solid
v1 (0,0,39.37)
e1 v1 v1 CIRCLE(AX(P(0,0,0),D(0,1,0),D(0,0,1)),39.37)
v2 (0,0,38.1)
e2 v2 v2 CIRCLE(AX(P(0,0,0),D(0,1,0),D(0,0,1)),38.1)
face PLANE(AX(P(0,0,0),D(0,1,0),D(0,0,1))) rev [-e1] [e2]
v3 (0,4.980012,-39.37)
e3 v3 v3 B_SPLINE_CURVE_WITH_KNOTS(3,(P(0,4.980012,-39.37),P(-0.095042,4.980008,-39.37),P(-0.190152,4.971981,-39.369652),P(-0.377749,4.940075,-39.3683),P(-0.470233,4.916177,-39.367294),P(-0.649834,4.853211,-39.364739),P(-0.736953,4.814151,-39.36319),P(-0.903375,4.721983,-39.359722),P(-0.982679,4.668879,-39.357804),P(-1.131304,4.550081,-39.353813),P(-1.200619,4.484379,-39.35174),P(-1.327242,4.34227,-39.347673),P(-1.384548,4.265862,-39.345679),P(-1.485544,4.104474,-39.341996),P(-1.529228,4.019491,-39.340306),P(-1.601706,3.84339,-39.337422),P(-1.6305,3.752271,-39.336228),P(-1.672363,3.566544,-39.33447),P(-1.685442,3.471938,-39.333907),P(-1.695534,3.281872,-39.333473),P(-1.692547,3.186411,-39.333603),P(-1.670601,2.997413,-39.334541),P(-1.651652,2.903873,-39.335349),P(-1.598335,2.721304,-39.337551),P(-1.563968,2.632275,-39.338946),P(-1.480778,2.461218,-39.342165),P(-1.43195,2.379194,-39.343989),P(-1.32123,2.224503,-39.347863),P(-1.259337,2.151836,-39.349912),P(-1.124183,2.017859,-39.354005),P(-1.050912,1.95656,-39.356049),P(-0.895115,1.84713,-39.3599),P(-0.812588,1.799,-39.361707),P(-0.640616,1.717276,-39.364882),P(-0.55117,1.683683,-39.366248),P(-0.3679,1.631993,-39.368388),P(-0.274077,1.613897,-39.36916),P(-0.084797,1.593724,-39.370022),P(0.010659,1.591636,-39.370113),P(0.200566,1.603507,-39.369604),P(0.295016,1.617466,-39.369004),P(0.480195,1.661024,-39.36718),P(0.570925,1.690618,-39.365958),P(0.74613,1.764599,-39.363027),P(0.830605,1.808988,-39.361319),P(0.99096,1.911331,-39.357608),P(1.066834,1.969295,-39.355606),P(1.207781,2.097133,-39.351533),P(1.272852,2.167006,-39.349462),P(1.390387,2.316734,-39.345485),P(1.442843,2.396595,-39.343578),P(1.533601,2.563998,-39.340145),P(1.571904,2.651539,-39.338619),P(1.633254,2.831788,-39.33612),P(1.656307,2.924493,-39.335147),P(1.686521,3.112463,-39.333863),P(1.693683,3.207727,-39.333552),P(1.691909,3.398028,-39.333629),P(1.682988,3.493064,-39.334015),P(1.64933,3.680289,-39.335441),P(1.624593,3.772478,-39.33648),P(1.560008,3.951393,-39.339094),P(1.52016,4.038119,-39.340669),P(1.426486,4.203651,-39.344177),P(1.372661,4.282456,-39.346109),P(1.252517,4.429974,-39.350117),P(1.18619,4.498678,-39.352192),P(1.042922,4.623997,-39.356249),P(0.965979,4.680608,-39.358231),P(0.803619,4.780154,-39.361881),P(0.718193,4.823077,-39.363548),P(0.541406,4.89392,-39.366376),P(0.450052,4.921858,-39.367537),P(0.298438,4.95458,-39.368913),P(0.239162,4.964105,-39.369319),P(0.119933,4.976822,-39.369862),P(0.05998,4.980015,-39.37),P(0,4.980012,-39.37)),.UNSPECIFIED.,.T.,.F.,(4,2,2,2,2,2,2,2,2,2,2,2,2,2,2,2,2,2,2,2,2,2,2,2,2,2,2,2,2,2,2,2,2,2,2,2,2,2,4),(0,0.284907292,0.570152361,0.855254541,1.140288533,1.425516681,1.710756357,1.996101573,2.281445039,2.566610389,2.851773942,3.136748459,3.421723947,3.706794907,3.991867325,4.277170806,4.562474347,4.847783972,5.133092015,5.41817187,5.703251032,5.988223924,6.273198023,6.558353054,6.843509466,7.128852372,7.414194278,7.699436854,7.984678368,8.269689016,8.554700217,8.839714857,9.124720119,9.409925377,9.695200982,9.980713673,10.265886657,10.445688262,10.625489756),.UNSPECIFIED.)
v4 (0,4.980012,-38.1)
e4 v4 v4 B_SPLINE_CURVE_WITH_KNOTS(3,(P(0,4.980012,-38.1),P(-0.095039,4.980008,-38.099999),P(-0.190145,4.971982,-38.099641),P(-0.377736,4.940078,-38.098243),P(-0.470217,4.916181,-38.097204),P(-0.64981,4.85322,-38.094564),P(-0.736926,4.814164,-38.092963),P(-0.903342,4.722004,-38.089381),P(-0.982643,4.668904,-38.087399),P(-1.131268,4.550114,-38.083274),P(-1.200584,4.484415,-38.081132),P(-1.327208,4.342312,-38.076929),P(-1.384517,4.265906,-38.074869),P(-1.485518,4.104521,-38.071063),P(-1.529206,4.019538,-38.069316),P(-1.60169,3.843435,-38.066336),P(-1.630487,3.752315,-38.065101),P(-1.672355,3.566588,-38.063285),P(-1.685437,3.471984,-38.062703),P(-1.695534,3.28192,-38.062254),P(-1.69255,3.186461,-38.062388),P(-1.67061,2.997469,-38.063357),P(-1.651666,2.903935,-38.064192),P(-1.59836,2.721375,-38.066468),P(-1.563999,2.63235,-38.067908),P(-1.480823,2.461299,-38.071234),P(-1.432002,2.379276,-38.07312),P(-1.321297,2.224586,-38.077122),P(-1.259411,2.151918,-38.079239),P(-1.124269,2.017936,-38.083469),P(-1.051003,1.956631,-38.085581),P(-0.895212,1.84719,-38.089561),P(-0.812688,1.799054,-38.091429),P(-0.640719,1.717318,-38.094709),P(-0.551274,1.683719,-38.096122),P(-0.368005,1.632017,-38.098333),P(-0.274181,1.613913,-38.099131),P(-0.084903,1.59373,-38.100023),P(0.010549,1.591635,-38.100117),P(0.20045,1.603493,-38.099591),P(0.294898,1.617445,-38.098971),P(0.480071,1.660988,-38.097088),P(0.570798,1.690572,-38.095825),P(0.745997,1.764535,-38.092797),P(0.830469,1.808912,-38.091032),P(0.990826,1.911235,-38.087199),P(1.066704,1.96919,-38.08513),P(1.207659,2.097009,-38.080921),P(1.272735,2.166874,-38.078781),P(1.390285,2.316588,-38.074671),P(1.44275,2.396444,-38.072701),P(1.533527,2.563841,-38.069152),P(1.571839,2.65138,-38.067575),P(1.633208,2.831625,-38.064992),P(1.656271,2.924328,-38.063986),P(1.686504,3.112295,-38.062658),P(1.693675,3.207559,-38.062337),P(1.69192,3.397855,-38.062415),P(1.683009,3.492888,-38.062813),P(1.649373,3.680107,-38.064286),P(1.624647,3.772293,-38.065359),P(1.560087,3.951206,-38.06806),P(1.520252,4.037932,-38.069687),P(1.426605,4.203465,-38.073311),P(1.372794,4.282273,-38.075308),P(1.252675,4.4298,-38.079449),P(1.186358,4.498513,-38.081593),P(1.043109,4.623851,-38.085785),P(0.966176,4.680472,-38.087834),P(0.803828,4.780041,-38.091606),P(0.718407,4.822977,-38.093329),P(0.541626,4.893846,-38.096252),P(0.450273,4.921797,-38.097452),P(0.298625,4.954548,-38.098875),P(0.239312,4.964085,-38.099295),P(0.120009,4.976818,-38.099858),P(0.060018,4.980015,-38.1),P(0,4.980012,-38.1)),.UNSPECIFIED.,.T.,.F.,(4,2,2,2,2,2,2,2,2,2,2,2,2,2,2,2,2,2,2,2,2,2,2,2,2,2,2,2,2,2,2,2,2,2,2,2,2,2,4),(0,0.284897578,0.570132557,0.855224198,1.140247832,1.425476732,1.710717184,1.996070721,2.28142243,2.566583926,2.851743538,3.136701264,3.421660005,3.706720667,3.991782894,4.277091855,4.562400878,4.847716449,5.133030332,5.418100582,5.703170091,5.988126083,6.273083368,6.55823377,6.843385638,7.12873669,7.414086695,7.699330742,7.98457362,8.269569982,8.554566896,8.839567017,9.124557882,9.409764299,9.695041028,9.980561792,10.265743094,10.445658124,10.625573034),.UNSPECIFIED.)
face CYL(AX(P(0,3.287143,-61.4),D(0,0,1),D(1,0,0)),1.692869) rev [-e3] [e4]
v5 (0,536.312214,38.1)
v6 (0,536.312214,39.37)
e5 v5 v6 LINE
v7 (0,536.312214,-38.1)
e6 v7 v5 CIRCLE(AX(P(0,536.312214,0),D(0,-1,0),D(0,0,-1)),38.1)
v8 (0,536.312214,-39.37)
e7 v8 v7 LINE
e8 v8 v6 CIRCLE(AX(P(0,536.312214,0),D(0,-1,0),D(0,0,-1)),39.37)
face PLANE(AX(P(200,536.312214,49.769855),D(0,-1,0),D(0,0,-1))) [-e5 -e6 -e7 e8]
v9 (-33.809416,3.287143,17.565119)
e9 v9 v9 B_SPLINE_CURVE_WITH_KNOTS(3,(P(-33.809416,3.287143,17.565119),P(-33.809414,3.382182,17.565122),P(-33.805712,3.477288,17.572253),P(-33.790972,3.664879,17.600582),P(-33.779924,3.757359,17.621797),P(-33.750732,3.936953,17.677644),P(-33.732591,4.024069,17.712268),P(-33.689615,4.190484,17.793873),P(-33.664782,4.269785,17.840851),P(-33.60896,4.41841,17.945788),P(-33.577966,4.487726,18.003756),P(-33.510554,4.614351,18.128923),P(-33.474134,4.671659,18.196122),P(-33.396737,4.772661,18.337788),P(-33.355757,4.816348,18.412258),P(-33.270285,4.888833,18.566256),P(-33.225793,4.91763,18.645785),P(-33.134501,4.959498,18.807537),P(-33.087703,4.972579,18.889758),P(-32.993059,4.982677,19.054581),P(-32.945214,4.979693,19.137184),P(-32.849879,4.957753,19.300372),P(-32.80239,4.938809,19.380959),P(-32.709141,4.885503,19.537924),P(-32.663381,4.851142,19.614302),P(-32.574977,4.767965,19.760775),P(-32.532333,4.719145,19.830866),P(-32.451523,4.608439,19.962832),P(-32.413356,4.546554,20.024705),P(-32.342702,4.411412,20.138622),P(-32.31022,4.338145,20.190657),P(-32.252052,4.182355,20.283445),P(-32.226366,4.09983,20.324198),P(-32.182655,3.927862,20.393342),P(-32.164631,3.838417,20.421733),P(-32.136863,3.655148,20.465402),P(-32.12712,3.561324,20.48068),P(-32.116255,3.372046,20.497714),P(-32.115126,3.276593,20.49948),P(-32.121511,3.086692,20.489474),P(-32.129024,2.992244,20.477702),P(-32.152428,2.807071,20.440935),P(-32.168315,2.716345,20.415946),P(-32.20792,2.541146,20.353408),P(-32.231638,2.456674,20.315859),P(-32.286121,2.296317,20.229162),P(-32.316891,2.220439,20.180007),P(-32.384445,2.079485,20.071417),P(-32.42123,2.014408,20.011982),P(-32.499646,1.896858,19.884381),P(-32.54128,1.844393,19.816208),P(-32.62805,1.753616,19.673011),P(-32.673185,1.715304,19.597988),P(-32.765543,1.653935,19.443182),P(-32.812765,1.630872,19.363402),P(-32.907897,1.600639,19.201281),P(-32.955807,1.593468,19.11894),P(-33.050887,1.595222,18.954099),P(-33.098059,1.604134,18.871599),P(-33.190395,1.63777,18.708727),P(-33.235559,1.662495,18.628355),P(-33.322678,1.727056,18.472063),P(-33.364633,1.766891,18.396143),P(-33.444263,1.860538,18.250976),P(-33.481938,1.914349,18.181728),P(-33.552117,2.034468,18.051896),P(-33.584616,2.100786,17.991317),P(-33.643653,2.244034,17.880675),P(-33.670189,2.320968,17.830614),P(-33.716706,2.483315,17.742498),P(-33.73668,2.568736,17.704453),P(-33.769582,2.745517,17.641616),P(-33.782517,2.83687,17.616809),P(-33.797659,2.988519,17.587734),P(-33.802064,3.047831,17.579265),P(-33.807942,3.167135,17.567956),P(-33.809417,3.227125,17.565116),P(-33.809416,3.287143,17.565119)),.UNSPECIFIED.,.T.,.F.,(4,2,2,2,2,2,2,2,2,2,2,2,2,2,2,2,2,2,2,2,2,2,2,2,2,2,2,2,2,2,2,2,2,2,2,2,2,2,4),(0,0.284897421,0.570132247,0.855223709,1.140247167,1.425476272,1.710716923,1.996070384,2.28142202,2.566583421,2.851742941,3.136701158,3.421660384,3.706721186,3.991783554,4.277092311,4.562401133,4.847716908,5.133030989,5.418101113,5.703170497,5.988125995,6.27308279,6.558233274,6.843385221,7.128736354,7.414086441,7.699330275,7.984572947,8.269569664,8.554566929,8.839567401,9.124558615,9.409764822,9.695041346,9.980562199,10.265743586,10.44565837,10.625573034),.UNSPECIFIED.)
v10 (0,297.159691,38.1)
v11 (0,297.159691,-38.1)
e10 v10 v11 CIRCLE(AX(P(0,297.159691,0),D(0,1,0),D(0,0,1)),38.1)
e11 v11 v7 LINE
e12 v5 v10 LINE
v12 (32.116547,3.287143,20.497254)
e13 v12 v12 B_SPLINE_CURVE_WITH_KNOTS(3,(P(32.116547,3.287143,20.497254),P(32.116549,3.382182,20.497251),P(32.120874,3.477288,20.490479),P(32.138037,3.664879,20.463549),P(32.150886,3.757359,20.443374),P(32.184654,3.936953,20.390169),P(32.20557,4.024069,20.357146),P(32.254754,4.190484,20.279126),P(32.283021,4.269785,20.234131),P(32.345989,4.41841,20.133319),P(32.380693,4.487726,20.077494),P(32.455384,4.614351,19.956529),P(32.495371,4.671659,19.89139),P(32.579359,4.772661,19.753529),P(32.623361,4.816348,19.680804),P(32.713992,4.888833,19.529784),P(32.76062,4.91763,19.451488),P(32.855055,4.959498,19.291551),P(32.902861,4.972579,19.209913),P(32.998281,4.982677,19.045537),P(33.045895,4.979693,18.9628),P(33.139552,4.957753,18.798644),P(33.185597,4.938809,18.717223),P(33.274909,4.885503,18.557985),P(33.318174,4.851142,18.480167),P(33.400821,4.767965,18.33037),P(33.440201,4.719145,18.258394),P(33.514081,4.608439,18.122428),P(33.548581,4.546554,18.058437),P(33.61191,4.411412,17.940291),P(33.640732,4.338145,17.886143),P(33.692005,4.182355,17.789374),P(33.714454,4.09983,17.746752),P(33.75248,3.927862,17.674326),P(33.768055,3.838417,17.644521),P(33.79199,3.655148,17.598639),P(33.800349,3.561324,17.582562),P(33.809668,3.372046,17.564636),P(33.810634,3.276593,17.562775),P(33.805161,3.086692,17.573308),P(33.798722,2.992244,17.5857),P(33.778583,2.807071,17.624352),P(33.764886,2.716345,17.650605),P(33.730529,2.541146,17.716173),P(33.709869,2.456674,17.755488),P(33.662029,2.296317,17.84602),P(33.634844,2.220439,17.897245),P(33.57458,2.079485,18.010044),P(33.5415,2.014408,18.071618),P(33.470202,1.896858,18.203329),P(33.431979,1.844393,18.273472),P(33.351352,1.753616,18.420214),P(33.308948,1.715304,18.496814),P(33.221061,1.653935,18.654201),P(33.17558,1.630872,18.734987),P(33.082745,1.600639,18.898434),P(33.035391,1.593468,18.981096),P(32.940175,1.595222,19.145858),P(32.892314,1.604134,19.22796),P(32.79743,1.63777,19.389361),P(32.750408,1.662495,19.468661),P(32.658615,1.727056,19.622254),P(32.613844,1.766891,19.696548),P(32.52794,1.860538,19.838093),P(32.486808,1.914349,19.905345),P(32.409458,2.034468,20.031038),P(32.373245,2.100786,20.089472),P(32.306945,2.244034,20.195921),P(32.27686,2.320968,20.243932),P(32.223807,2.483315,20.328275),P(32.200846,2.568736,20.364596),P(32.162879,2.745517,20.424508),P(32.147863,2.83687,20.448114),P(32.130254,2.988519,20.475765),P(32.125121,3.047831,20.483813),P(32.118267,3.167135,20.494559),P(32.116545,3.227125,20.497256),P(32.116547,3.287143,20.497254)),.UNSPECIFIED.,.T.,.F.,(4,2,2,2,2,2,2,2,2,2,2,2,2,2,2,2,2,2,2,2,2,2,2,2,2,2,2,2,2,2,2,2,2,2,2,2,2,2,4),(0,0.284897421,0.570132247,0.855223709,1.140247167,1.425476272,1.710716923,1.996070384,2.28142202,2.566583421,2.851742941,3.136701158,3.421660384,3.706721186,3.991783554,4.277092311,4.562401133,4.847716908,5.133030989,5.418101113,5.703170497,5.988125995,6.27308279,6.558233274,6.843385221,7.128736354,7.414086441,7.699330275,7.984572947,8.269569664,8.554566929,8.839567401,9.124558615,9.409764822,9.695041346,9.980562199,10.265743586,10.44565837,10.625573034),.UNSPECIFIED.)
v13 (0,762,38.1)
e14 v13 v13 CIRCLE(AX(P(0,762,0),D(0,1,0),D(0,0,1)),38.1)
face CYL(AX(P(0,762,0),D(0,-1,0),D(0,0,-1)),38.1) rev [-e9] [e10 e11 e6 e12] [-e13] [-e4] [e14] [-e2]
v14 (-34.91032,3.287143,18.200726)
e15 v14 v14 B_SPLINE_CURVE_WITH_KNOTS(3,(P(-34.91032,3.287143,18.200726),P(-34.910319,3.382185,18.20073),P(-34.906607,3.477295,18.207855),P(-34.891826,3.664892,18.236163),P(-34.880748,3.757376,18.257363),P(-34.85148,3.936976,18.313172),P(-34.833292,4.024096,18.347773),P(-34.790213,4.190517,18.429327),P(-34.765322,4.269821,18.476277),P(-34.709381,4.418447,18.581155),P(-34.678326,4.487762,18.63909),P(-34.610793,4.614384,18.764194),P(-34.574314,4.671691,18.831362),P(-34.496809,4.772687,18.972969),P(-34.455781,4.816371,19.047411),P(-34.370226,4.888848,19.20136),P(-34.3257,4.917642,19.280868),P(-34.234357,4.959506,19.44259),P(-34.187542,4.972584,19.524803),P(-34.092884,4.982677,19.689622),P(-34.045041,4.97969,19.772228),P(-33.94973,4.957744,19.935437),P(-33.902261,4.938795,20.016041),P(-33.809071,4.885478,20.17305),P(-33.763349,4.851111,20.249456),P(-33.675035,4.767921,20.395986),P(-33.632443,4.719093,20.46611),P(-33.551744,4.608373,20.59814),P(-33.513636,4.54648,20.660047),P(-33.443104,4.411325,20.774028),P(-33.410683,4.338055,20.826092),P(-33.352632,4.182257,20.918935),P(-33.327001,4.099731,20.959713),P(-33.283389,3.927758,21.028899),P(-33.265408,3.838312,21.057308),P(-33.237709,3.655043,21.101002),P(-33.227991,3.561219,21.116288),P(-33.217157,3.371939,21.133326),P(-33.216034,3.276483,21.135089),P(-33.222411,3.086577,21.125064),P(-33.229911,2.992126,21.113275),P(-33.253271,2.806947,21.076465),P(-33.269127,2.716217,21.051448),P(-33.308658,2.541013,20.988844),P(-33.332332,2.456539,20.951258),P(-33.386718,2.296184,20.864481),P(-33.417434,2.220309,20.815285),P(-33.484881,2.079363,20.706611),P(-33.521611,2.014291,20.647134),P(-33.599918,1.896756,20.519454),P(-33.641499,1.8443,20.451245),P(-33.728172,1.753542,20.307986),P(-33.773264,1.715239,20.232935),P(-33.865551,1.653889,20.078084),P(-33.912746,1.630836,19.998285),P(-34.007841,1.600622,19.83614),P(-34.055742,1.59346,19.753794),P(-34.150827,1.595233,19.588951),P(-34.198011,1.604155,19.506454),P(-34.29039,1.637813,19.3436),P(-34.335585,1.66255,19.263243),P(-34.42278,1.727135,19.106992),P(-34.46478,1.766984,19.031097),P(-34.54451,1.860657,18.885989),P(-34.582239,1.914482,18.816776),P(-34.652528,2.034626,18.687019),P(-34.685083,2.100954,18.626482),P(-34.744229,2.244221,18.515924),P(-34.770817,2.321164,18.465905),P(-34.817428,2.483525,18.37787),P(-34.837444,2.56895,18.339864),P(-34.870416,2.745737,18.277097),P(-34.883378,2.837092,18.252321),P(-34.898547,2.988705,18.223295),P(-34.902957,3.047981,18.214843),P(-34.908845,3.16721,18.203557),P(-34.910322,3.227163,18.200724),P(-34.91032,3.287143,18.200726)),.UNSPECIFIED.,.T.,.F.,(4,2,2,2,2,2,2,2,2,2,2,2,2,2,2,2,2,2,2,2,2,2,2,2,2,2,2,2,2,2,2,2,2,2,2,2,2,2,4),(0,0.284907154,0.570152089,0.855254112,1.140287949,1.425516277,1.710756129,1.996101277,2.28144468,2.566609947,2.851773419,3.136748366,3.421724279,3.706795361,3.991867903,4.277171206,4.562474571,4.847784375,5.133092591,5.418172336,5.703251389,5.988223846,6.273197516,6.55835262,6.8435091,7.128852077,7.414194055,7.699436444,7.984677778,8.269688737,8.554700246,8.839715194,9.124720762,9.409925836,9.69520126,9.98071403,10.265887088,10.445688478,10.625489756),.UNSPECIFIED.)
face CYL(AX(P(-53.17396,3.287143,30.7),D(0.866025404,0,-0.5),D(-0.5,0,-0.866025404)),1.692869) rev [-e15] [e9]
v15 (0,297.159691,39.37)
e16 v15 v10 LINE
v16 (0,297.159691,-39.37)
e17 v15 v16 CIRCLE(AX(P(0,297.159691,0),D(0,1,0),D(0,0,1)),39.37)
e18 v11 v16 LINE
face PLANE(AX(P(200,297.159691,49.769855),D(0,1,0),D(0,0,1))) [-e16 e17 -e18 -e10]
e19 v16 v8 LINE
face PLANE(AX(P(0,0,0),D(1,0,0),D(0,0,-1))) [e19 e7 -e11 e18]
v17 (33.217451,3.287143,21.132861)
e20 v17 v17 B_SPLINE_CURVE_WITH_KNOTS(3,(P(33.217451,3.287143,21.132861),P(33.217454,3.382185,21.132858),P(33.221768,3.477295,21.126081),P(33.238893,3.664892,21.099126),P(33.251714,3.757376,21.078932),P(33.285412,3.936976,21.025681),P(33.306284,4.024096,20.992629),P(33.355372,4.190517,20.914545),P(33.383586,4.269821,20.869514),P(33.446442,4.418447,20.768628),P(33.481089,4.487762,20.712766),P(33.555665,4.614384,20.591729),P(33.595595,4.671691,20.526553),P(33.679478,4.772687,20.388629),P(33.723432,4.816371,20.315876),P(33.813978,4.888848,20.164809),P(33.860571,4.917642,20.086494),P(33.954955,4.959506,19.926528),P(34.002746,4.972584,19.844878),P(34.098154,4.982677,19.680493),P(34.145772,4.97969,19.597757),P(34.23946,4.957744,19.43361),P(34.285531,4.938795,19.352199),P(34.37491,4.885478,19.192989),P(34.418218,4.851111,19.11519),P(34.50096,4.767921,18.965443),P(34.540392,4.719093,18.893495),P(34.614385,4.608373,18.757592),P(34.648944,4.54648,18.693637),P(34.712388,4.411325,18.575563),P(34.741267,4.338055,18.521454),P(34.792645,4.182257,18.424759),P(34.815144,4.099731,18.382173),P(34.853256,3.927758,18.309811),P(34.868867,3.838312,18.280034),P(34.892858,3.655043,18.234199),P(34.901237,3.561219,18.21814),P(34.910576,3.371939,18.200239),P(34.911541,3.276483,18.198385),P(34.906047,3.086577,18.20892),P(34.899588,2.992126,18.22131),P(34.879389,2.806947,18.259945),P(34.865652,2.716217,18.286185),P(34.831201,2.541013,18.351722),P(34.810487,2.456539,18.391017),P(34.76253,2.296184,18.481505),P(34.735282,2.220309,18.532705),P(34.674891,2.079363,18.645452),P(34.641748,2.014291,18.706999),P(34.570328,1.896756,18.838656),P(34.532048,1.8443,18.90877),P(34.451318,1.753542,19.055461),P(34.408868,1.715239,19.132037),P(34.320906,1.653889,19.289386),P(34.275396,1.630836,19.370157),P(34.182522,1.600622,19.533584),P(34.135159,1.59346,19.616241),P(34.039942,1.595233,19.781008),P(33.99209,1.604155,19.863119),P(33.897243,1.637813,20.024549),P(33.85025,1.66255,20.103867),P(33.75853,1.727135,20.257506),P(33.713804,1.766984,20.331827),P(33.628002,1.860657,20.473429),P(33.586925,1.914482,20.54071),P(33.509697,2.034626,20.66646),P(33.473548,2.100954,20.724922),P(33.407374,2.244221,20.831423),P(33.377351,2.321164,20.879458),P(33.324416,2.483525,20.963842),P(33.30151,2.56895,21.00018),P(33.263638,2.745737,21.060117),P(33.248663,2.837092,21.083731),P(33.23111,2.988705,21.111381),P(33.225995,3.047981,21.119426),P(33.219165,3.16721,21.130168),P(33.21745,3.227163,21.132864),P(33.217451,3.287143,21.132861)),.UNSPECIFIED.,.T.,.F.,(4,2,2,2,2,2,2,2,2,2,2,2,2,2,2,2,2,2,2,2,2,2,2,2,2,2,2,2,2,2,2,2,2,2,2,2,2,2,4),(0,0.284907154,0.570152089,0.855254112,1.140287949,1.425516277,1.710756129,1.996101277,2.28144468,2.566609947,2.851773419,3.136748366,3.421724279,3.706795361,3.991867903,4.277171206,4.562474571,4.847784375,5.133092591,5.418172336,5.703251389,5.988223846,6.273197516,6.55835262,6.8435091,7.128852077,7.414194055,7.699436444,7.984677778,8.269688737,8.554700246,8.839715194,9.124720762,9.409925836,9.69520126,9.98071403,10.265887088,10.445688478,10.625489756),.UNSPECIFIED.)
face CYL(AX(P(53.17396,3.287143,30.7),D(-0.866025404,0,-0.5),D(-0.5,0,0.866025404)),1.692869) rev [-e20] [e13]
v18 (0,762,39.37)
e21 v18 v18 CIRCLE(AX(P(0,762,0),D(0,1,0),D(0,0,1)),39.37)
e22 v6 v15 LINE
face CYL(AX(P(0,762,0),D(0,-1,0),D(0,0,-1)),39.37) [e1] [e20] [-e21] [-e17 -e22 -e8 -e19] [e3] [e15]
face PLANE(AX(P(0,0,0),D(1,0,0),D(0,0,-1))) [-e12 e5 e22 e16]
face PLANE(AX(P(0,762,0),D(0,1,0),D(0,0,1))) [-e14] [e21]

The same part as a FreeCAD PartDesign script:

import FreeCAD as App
import Part
import Sketcher

V = App.Vector
Q = App.Units.Quantity


def add_polygon(sketch, points):
    """Adds a closed chain of lines whose ends are joined by coincident constraints."""
    first, n = sketch.GeometryCount, len(points)
    for a, b in zip(points, points[1:] + points[:1]):
        sketch.addGeometry(Part.LineSegment(App.Vector(*a, 0), App.Vector(*b, 0)), False)
    for i in range(n):
        sketch.addConstraint(Sketcher.Constraint("Coincident", first + i, 2, first + (i + 1) % n, 1))

doc = App.newDocument("Part")
body = doc.addObject("PartDesign::Body", "Body")

# Sketch on XZ plane
sketch1 = doc.addObject("Sketcher::SketchObject", "Sketch")
body.addObject(sketch1)
sketch1.AttachmentSupport = (doc.XZ_Plane, [""])
sketch1.MapMode = "FlatFace"
sketch1.addGeometry([
    Part.Circle(V(0, 0, 0), V(0, 0, 1), 39.37),
    Part.Circle(V(0, 0, 0), V(0, 0, 1), 38.1),
], False)
sketch1.addConstraint([
    Sketcher.Constraint("Coincident", 0, 3, -1, 1),
    Sketcher.Constraint("Coincident", 1, 3, -1, 1),
    Sketcher.Constraint("Diameter", 1, Q("3 in")),
    Sketcher.Constraint("Diameter", 0, Q("3.1 in")),
])
pad1 = doc.addObject("PartDesign::Pad", "Pad")
body.addObject(pad1)
pad1.Profile = sketch1
pad1.Length = Q("30 in")
pad1.Reversed = True

# Sketch on XY plane
sketch2 = doc.addObject("Sketcher::SketchObject", "Sketch001")
body.addObject(sketch2)
sketch2.AttachmentSupport = (doc.XY_Plane, [""])
sketch2.MapMode = "FlatFace"
sketch2.addGeometry(Part.Circle(V(0, 3.287143, 0), V(0, 0, 1), 1.692869), False)
sketch2.addConstraint([
    Sketcher.Constraint("PointOnObject", 0, 3, -2),
    Sketcher.Constraint("Diameter", 0, Q("3.385738 mm")),
    Sketcher.Constraint("DistanceY", -1, 1, 0, 3, Q("3.287143 mm")),
])
pocket1 = doc.addObject("PartDesign::Pocket", "Pocket")
body.addObject(pocket1)
pocket1.Profile = sketch2
pocket1.Length = 61.4
doc.recompute()

polarpattern = doc.addObject("PartDesign::PolarPattern", "PolarPattern")
body.addObject(polarpattern)
polarpattern.Originals = [pocket1]
polarpattern.Axis = (doc.Y_Axis, [""])
polarpattern.Angle = 360
polarpattern.Occurrences = 3
body.Tip = polarpattern

# Sketch on YZ plane
sketch3 = doc.addObject("Sketcher::SketchObject", "Sketch002")
body.addObject(sketch3)
sketch3.AttachmentSupport = (doc.YZ_Plane, [""])
sketch3.MapMode = "FlatFace"
add_polygon(sketch3, [(536.312214, 49.769855), (297.159691, 49.769855), (297.159691, -47.077035), (536.312214, -47.077035)])  # lines 0-3
sketch3.addConstraint([
    Sketcher.Constraint("Horizontal", 0),
    Sketcher.Constraint("Vertical", 1),
    Sketcher.Constraint("Horizontal", 2),
    Sketcher.Constraint("Vertical", 3),
    Sketcher.Constraint("DistanceY", 1, 2, 1, 1, Q("96.846889 mm")),
    Sketcher.Constraint("DistanceX", 0, 2, 0, 1, Q("239.152523 mm")),
    Sketcher.Constraint("DistanceX", -1, 1, 0, 2, Q("297.159691 mm")),
    Sketcher.Constraint("DistanceY", -1, 1, 0, 2, Q("49.769855 mm")),
])
pocket2 = doc.addObject("PartDesign::Pocket", "Pocket001")
body.addObject(pocket2)
pocket2.Profile = sketch3
pocket2.Length = 200
pocket2.Reversed = True

doc.recompute()
